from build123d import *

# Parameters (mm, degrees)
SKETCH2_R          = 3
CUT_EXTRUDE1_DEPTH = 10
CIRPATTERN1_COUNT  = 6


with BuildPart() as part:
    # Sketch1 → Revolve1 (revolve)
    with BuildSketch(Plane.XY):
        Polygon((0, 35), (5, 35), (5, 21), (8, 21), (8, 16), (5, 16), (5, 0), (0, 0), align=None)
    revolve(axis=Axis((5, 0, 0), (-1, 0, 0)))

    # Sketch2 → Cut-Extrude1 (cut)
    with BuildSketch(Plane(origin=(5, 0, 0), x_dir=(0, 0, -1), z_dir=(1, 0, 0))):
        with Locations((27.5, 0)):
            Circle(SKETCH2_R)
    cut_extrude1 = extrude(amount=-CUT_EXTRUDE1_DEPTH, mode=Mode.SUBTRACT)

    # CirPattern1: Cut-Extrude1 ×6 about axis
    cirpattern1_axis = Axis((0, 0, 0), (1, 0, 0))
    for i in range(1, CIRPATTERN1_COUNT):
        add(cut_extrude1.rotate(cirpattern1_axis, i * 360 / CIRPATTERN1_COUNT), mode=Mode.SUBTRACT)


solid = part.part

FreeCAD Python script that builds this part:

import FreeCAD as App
import Part
import Sketcher
Q = App.Units.Quantity

doc = App.newDocument("Part")
body = doc.addObject("PartDesign::Body", "Body")

# Sketch on XY plane
sketch1 = body.newObject("Sketcher::SketchObject", "Sketch")
sketch1.AttachmentSupport = (doc.getObject("XY_Plane"), [""])
sketch1.MapMode = "FlatFace"
sketch1.addGeometry([
    Part.LineSegment(App.Vector(5, 35, 0), App.Vector(0, 35, 0)),  # 0
    Part.LineSegment(App.Vector(0, 35, 0), App.Vector(0, 0, 0)),  # 1
    Part.LineSegment(App.Vector(0, 0, 0), App.Vector(5, 0, 0)),  # 2
    Part.LineSegment(App.Vector(5, 0, 0), App.Vector(5, 16, 0)),  # 3
    Part.LineSegment(App.Vector(5, 16, 0), App.Vector(8, 16, 0)),  # 4
    Part.LineSegment(App.Vector(8, 16, 0), App.Vector(8, 21, 0)),  # 5
    Part.LineSegment(App.Vector(8, 21, 0), App.Vector(5, 21, 0)),  # 6
    Part.LineSegment(App.Vector(5, 21, 0), App.Vector(5, 35, 0)),  # 7
], False)
sketch1.addConstraint([
    Sketcher.Constraint("Coincident", 0, 2, 1, 1),
    Sketcher.Constraint("Coincident", 1, 2, 2, 1),
    Sketcher.Constraint("Coincident", 2, 2, 3, 1),
    Sketcher.Constraint("Coincident", 3, 2, 4, 1),
    Sketcher.Constraint("Coincident", 4, 2, 5, 1),
    Sketcher.Constraint("Coincident", 5, 2, 6, 1),
    Sketcher.Constraint("Coincident", 6, 2, 7, 1),
    Sketcher.Constraint("Coincident", 7, 2, 0, 1),
    Sketcher.Constraint("Horizontal", 0),
    Sketcher.Constraint("Vertical", 1),
    Sketcher.Constraint("Horizontal", 2),
    Sketcher.Constraint("Vertical", 3),
    Sketcher.Constraint("Horizontal", 4),
    Sketcher.Constraint("Vertical", 5),
    Sketcher.Constraint("Horizontal", 6),
    Sketcher.Constraint("Vertical", 7),
    Sketcher.Constraint("Coincident", 1, 2, -1, 1),
    Sketcher.Constraint("Vertical", 3, 2, 6, 2),
    Sketcher.Constraint("Equal", 2, 5),
    Sketcher.Constraint("DistanceX", 0, 2, 0, 1, Q("5 mm")),
    Sketcher.Constraint("DistanceX", 4, 1, 4, 2, Q("3 mm")),
    Sketcher.Constraint("DistanceY", 1, 2, 1, 1, Q("35 mm")),
    Sketcher.Constraint("DistanceY", 3, 1, 3, 2, Q("16 mm")),
])
revolution = body.newObject("PartDesign::Revolution", "Revolution")
revolution.Profile = sketch1
revolution.ReferenceAxis = (sketch1, ["H_Axis"])
revolution.Angle = 360

# Sketch on YZ plane
sketch2 = body.newObject("Sketcher::SketchObject", "Sketch001")
sketch2.AttachmentSupport = (doc.getObject("YZ_Plane"), [""])
sketch2.MapMode = "FlatFace"
sketch2.AttachmentOffset = App.Placement(App.Vector(0, 0, 5), App.Rotation())
sketch2.addGeometry(Part.Circle(App.Vector(0, -27.5, 0), App.Vector(0, 0, 1), 3), False)
sketch2.addConstraint([
    Sketcher.Constraint("PointOnObject", 0, 3, -2),
    Sketcher.Constraint("Diameter", 0, Q("6 mm")),
    Sketcher.Constraint("DistanceY", 0, 3, -1, 1, Q("27.5 mm")),
])
pocket1 = body.newObject("PartDesign::Pocket", "Pocket")
pocket1.Profile = sketch2
pocket1.Length = 10
doc.recompute()

polarpattern = body.newObject("PartDesign::PolarPattern", "PolarPattern")
polarpattern.Originals = [pocket1]
polarpattern.Axis = (doc.getObject("X_Axis"), [""])
polarpattern.Angle = 360
polarpattern.Occurrences = 6
body.Tip = polarpattern

doc.recompute()
